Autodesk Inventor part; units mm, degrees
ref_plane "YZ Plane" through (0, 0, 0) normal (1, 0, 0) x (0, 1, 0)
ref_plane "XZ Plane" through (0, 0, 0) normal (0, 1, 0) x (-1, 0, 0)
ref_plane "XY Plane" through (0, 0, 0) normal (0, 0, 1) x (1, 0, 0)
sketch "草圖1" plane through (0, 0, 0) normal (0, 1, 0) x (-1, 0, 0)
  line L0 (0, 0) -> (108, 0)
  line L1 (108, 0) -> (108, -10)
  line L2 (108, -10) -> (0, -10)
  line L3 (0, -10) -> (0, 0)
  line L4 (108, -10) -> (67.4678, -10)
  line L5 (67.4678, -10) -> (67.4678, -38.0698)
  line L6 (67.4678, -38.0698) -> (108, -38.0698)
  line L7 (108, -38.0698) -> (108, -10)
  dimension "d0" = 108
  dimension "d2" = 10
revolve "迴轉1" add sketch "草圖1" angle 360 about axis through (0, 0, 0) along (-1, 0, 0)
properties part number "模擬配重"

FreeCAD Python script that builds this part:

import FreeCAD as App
import Part
import Sketcher
from FreeCAD import Vector
Q = App.Units.Quantity


def add_polygon(sketch, points):
    """Adds a closed chain of lines whose ends are joined by coincident constraints."""
    first, n = sketch.GeometryCount, len(points)
    for a, b in zip(points, points[1:] + points[:1]):
        sketch.addGeometry(Part.LineSegment(App.Vector(*a, 0), App.Vector(*b, 0)), False)
    for i in range(n):
        sketch.addConstraint(Sketcher.Constraint("Coincident", first + i, 2, first + (i + 1) % n, 1))

doc = App.newDocument("Part")
body = doc.addObject("PartDesign::Body", "Body")

sketch1 = body.newObject("Sketcher::SketchObject", "Sketch")
sketch1.AttachmentSupport = (doc.getObject("XZ_Plane"), [""])
sketch1.MapMode = "FlatFace"
add_polygon(sketch1, [(-108, 0), (0, 0), (0, -10), (-67, -10), (-67, -38), (-108, -38)])
sketch1.addConstraint([
    Sketcher.Constraint("Horizontal", 0),
    Sketcher.Constraint("Vertical", 1),
    Sketcher.Constraint("Horizontal", 2),
    Sketcher.Constraint("Vertical", 3),
    Sketcher.Constraint("Horizontal", 4),
    Sketcher.Constraint("Vertical", 5),
    Sketcher.Constraint("Coincident", 0, 2, -1, 1),
    Sketcher.Constraint("DistanceX", 0, 1, 0, 2, Q("108 mm")),
    Sketcher.Constraint("DistanceY", 1, 2, 1, 1, Q("10 mm")),
    Sketcher.Constraint("DistanceX", 2, 2, 2, 1, Q("67.4678 mm")),
    Sketcher.Constraint("DistanceY", 3, 2, 3, 1, Q("28.0698 mm")),
])
revolution = body.newObject("PartDesign::Revolution", "Revolution")
revolution.Profile = sketch1
revolution.ReferenceAxis = (sketch1, ["H_Axis"])
revolution.Angle = 360

doc.recompute()
